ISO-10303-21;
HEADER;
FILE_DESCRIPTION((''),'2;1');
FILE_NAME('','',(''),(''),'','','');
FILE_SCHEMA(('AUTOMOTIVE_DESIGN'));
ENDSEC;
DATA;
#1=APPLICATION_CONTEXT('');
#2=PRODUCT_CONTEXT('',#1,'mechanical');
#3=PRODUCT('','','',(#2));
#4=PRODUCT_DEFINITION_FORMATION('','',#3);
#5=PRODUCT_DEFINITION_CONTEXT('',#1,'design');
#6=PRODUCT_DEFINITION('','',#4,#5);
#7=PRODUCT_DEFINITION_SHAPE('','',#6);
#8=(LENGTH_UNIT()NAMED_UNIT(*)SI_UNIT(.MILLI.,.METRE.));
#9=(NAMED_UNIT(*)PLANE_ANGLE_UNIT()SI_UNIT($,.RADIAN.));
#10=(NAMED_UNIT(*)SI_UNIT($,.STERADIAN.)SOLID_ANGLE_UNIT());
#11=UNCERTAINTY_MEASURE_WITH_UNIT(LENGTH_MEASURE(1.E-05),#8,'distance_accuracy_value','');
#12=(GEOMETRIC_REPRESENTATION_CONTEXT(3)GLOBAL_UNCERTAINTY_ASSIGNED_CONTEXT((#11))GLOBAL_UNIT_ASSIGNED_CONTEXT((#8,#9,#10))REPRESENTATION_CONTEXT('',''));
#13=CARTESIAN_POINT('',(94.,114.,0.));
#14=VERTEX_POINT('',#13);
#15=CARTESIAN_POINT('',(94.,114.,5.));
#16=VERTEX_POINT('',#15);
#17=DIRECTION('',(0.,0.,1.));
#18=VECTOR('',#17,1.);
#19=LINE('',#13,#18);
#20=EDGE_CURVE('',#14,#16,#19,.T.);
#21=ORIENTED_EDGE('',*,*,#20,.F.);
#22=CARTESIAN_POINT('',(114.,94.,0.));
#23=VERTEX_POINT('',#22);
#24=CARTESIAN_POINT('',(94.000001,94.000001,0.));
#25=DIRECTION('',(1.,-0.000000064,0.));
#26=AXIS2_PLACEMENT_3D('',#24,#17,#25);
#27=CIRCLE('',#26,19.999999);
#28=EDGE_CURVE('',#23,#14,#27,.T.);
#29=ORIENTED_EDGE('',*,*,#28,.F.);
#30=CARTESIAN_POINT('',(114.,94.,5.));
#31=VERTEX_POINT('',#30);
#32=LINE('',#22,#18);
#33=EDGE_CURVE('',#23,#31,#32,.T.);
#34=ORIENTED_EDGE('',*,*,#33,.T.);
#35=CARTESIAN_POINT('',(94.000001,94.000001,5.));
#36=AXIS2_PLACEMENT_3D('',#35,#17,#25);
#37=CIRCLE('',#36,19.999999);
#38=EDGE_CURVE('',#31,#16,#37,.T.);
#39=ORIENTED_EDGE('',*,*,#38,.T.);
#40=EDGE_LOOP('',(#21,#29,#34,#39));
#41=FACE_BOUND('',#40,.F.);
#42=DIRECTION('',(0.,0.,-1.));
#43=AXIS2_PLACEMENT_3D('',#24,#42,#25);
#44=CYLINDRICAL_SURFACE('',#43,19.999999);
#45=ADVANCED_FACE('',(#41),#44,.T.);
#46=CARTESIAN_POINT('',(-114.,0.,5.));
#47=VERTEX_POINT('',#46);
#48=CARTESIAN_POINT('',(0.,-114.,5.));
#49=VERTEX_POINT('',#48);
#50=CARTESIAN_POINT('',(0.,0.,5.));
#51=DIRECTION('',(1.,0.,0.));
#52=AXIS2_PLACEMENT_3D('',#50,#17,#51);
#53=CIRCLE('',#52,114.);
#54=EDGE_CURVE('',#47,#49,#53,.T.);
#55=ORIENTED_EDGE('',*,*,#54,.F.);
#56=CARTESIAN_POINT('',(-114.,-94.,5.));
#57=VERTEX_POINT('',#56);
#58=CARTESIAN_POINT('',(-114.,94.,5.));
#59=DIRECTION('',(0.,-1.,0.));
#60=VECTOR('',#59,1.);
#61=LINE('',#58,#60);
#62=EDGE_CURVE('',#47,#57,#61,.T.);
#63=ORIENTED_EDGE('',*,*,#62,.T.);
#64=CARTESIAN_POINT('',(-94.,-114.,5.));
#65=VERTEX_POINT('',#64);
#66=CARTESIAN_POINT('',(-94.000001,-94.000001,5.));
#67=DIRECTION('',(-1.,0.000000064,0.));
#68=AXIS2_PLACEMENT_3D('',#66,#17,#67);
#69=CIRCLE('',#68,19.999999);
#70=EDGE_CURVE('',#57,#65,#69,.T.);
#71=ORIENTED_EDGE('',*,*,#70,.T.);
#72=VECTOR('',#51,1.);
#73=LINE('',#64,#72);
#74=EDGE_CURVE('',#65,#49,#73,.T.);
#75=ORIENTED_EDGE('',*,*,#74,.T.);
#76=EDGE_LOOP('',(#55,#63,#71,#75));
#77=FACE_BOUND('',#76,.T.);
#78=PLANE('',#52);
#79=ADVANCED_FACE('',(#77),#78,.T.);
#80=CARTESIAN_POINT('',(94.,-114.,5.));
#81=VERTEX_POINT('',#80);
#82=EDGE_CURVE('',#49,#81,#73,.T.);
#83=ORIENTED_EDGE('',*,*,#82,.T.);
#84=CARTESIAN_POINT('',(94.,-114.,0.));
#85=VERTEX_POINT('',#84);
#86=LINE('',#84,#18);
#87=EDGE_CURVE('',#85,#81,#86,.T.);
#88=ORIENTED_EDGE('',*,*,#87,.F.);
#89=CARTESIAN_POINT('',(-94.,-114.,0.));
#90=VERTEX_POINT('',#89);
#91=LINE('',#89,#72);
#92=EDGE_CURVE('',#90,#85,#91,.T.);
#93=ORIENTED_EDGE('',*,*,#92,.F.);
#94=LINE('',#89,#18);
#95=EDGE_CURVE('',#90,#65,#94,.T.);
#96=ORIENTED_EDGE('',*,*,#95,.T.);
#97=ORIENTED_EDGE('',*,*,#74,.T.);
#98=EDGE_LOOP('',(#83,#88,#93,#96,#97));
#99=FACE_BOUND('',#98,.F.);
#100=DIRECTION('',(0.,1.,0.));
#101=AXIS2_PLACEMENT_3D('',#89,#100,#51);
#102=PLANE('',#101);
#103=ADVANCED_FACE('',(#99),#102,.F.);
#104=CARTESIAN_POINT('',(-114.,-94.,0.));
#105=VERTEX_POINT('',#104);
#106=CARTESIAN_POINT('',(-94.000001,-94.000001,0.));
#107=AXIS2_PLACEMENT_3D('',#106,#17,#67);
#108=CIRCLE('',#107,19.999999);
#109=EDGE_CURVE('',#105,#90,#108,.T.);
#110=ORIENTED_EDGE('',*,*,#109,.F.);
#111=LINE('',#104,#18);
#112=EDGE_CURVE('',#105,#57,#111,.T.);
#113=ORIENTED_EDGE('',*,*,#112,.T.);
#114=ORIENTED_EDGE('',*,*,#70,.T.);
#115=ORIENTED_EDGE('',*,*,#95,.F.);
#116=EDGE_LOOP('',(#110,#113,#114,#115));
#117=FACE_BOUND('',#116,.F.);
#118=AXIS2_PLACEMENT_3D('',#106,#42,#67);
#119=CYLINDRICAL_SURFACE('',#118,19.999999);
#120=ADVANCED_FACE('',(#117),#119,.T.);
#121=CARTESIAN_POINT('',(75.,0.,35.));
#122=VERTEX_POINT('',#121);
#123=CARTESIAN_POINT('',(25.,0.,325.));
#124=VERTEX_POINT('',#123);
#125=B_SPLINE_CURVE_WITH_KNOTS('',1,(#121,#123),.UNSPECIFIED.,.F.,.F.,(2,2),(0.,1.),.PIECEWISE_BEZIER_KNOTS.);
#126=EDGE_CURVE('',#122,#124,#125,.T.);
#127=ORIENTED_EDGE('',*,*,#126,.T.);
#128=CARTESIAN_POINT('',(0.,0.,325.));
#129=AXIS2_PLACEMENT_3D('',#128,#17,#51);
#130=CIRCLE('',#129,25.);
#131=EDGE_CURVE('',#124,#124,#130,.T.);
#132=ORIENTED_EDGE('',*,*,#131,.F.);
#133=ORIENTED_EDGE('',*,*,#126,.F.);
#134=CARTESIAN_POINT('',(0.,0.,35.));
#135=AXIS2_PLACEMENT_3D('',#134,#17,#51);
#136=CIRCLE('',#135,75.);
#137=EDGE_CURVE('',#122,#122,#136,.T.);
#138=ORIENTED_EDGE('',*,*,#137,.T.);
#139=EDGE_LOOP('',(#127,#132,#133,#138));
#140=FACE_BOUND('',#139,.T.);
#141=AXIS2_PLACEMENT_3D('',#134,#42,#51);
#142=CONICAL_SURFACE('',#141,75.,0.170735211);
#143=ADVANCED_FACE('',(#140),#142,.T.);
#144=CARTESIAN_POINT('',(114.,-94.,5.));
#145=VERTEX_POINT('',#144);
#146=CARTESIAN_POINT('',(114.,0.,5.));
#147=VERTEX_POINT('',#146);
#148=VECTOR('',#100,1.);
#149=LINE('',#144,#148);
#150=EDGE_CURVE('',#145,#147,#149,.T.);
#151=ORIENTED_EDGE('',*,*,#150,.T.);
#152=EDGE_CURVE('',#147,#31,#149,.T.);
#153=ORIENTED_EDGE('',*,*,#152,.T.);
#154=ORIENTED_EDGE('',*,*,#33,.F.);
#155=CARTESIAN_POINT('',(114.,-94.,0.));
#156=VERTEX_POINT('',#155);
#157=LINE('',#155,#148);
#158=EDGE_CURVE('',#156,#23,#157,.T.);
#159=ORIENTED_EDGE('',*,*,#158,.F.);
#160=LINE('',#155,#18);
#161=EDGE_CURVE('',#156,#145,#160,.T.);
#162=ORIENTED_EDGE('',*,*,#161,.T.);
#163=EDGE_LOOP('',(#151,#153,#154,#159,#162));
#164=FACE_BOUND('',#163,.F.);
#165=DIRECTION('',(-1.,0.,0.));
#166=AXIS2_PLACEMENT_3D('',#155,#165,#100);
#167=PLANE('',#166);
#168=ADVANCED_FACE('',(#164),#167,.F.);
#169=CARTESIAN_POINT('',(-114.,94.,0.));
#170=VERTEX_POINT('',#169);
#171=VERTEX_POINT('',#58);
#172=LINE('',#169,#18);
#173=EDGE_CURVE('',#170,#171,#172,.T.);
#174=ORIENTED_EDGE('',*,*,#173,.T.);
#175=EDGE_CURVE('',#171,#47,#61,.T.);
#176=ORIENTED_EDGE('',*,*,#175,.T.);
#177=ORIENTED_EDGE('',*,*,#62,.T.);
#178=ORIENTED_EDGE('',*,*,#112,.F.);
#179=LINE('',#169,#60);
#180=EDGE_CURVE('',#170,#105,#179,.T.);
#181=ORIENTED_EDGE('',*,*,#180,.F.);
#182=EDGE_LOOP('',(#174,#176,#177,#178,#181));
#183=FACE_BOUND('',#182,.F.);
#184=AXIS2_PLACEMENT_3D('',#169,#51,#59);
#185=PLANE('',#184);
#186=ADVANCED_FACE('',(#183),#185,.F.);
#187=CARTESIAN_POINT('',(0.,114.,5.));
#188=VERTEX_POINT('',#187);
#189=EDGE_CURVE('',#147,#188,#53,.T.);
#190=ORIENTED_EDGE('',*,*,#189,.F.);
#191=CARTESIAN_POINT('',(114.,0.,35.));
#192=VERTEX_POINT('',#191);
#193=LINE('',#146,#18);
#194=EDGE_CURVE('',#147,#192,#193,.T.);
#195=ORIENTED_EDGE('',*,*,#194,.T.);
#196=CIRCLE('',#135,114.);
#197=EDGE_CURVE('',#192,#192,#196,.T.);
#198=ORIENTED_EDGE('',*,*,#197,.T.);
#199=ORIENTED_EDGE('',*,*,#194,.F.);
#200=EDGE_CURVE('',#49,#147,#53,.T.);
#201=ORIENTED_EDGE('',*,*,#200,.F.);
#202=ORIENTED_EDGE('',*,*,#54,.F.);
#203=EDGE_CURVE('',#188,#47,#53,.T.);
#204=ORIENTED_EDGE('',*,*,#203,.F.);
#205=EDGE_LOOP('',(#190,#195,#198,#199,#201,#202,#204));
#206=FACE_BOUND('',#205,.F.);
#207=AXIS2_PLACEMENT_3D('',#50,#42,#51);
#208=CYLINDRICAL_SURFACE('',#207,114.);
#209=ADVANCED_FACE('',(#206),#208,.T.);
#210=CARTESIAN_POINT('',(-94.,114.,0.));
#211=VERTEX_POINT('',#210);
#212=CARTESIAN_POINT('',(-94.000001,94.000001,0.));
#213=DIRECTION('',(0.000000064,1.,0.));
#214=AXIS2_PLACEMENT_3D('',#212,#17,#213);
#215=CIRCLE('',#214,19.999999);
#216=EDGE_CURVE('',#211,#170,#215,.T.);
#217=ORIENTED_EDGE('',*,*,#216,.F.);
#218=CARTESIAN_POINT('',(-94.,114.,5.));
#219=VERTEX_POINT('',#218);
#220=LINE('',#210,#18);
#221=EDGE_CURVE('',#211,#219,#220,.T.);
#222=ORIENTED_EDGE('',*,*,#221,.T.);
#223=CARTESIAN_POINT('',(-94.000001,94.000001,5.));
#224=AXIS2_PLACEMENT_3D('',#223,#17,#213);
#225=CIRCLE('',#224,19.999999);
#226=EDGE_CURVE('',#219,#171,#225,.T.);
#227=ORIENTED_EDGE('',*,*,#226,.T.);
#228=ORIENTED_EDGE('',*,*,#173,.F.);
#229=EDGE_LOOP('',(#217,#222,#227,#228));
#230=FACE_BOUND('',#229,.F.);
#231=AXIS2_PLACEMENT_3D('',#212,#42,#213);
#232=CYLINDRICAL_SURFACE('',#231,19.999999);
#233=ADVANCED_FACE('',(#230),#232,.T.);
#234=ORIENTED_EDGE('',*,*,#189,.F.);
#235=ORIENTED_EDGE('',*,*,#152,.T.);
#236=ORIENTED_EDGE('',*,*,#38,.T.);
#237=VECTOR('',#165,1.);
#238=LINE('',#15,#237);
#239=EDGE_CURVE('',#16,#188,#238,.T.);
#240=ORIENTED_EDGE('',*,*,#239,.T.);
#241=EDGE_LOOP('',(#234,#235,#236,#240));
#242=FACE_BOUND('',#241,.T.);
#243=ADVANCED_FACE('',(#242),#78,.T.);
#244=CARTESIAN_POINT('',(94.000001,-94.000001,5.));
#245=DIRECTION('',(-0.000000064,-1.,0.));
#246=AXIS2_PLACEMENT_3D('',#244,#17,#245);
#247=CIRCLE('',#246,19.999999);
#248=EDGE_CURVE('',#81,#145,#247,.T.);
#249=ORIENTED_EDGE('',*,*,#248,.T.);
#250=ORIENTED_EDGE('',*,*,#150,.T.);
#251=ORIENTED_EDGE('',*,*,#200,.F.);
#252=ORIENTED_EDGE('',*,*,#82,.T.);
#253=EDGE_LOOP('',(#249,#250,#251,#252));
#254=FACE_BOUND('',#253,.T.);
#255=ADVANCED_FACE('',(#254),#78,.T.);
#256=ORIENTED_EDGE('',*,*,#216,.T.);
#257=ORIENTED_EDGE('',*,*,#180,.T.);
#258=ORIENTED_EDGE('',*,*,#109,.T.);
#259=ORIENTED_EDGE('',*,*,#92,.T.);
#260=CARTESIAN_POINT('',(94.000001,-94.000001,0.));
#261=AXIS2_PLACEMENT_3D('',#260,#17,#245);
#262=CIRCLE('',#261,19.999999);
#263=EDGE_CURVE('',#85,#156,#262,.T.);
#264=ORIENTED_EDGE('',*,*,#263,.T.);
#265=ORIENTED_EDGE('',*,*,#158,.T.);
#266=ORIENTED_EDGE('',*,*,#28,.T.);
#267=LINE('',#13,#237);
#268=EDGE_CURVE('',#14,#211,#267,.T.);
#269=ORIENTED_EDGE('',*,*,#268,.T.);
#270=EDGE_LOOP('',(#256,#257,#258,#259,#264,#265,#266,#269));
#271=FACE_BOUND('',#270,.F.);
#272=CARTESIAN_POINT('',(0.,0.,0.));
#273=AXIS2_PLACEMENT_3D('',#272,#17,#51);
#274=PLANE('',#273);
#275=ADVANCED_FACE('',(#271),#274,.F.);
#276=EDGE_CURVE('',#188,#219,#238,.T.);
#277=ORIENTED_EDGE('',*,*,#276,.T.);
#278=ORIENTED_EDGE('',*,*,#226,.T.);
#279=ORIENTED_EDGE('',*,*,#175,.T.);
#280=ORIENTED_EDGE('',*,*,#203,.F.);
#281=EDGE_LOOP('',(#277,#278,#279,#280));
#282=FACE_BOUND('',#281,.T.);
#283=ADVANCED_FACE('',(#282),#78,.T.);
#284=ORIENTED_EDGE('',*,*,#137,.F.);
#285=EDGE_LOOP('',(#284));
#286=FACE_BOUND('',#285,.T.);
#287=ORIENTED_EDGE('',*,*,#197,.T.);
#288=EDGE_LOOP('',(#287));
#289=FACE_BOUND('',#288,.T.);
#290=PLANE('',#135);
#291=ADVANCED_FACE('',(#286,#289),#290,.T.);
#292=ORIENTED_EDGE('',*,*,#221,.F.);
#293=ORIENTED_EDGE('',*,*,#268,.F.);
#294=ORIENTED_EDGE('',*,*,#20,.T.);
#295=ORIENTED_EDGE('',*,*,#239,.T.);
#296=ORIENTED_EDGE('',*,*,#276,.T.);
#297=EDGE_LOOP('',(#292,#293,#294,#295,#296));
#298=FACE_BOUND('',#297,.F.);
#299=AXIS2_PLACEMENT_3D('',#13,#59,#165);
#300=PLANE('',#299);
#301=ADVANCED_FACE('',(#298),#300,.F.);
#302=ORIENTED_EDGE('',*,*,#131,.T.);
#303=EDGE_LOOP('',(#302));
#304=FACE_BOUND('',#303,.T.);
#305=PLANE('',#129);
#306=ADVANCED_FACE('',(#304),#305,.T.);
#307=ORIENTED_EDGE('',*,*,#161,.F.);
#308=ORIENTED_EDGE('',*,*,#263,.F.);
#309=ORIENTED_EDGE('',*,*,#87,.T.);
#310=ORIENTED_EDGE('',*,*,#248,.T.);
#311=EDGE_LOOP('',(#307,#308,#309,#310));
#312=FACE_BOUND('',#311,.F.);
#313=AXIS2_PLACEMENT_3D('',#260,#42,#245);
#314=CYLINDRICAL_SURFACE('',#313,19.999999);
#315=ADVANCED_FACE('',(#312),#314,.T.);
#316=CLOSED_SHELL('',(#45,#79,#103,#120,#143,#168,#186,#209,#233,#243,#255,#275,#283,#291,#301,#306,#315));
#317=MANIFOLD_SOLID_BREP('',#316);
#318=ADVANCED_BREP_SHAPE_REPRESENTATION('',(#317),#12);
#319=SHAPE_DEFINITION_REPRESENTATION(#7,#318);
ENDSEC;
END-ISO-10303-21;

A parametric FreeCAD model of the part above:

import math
import FreeCAD as App
import Part
import Sketcher

V = App.Vector
Q = App.Units.Quantity

doc = App.newDocument("Part")
body = doc.addObject("PartDesign::Body", "Body")

sketch1 = doc.addObject("Sketcher::SketchObject", "Sketch")
body.addObject(sketch1)
sketch1.AttachmentSupport = (doc.XY_Plane, [""])
sketch1.MapMode = "FlatFace"
sketch1.addGeometry([
    Part.LineSegment(V(-94, -114, 0), V(94, -114, 0)),
    Part.ArcOfCircle(Part.Circle(V(94, -94, 0), V(0, 0, 1), 20), math.radians(-90), math.radians(0)),
    Part.LineSegment(V(114, -94, 0), V(114, 94, 0)),
    Part.ArcOfCircle(Part.Circle(V(94, 94, 0), V(0, 0, 1), 20), math.radians(0), math.radians(90)),
    Part.LineSegment(V(94, 114, 0), V(-94, 114, 0)),
    Part.ArcOfCircle(Part.Circle(V(-94, 94, 0), V(0, 0, 1), 20), math.radians(90), math.radians(180)),
    Part.LineSegment(V(-114, 94, 0), V(-114, -94, 0)),
    Part.ArcOfCircle(Part.Circle(V(-94, -94, 0), V(0, 0, 1), 20), math.radians(180), math.radians(270)),
], False)
sketch1.addConstraint([
    Sketcher.Constraint("Tangent", 0, 2, 1, 1),
    Sketcher.Constraint("Tangent", 1, 2, 2, 1),
    Sketcher.Constraint("Tangent", 2, 2, 3, 1),
    Sketcher.Constraint("Tangent", 3, 2, 4, 1),
    Sketcher.Constraint("Tangent", 4, 2, 5, 1),
    Sketcher.Constraint("Tangent", 5, 2, 6, 1),
    Sketcher.Constraint("Tangent", 6, 2, 7, 1),
    Sketcher.Constraint("Tangent", 7, 2, 0, 1),
    Sketcher.Constraint("Horizontal", 0),
    Sketcher.Constraint("Vertical", 2),
    Sketcher.Constraint("Horizontal", 4),
    Sketcher.Constraint("Vertical", 6),
    Sketcher.Constraint("Equal", 1, 3),
    Sketcher.Constraint("Equal", 3, 5),
    Sketcher.Constraint("Equal", 5, 7),
    Sketcher.Constraint("Symmetric", 1, 3, 5, 3, -1, 1),
    Sketcher.Constraint("Equal", 4, 2),
    Sketcher.Constraint("Radius", 1, Q("19.999999 mm")),
    Sketcher.Constraint("DistanceX", 0, 1, 0, 2, Q("188 mm")),
])
pad1 = doc.addObject("PartDesign::Pad", "Pad")
body.addObject(pad1)
pad1.Profile = sketch1
pad1.Length = 5

sketch2 = doc.addObject("Sketcher::SketchObject", "Sketch001")
body.addObject(sketch2)
sketch2.AttachmentSupport = (doc.XY_Plane, [""])
sketch2.MapMode = "FlatFace"
sketch2.AttachmentOffset = App.Placement(V(0, 0, 5), App.Rotation())
sketch2.addGeometry(Part.Circle(V(0, 0, 0), V(0, 0, 1), 114), False)
sketch2.addConstraint([
    Sketcher.Constraint("Coincident", 0, 3, -1, 1),
    Sketcher.Constraint("Diameter", 0, Q("228 mm")),
])
pad2 = doc.addObject("PartDesign::Pad", "Pad001")
body.addObject(pad2)
pad2.Profile = sketch2
pad2.Length = 30

sketch3 = doc.addObject("Sketcher::SketchObject", "Sketch002")
body.addObject(sketch3)
sketch3.AttachmentSupport = (doc.XY_Plane, [""])
sketch3.MapMode = "FlatFace"
sketch3.AttachmentOffset = App.Placement(V(0, 0, 35), App.Rotation())
sketch3.addGeometry(Part.Circle(V(0, 0, 0), V(0, 0, 1), 75), False)
sketch3.addConstraint([
    Sketcher.Constraint("Coincident", 0, 3, -1, 1),
    Sketcher.Constraint("Diameter", 0, Q("150 mm")),
])

sketch4 = doc.addObject("Sketcher::SketchObject", "Sketch003")
body.addObject(sketch4)
sketch4.AttachmentSupport = (doc.XY_Plane, [""])
sketch4.MapMode = "FlatFace"
sketch4.AttachmentOffset = App.Placement(V(0, 0, 325), App.Rotation())
sketch4.addGeometry(Part.Circle(V(0, 0, 0), V(0, 0, 1), 25), False)
sketch4.addConstraint([
    Sketcher.Constraint("Coincident", 0, 3, -1, 1),
    Sketcher.Constraint("Diameter", 0, Q("50 mm")),
])

additiveloft = doc.addObject("PartDesign::AdditiveLoft", "AdditiveLoft")
body.addObject(additiveloft)
additiveloft.Profile = sketch3
additiveloft.Sections = [sketch4]

doc.recompute()
